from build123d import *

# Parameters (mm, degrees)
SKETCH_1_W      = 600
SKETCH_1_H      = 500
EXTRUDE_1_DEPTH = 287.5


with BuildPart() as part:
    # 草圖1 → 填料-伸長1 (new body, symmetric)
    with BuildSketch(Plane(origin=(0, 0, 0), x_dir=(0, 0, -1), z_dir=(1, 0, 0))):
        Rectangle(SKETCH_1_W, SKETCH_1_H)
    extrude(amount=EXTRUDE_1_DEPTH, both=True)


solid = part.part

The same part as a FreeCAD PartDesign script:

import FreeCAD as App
import Part
import Sketcher

V = App.Vector

doc = App.newDocument("Part")
body = doc.addObject("PartDesign::Body", "Body")

# Sketch on YZ plane
sketch1 = body.newObject("Sketcher::SketchObject", "Sketch")
sketch1.AttachmentSupport = (doc.getObject("YZ_Plane"), [""])
sketch1.MapMode = "FlatFace"
sketch1.addGeometry(Part.LineSegment(V(250, 300, 0), V(-250, 300, 0)), False)
sketch1.addGeometry(Part.LineSegment(V(-250, 300, 0), V(-250, -300, 0)), False)
sketch1.addGeometry(Part.LineSegment(V(-250, -300, 0), V(250, -300, 0)), False)
sketch1.addGeometry(Part.LineSegment(V(250, -300, 0), V(250, 300, 0)), False)
sketch1.addConstraint(Sketcher.Constraint("Coincident", 0, 2, 1, 1))
sketch1.addConstraint(Sketcher.Constraint("Coincident", 1, 2, 2, 1))
sketch1.addConstraint(Sketcher.Constraint("Coincident", 2, 2, 3, 1))
sketch1.addConstraint(Sketcher.Constraint("Coincident", 3, 2, 0, 1))
sketch1.addConstraint(Sketcher.Constraint("Horizontal", 0))
sketch1.addConstraint(Sketcher.Constraint("Vertical", 1))
sketch1.addConstraint(Sketcher.Constraint("Horizontal", 2))
sketch1.addConstraint(Sketcher.Constraint("Vertical", 3))
sketch1.addConstraint(Sketcher.Constraint("Symmetric", 0, 2, 2, 2, -1, 1))
sketch1.addConstraint(Sketcher.Constraint("DistanceX", 0, 2, 0, 1, 500.0))
sketch1.addConstraint(Sketcher.Constraint("DistanceY", 1, 2, 1, 1, 600.0))
pad1 = body.newObject("PartDesign::Pad", "Pad")
pad1.Profile = sketch1
pad1.Length = 575
pad1.Midplane = True

doc.recompute()
